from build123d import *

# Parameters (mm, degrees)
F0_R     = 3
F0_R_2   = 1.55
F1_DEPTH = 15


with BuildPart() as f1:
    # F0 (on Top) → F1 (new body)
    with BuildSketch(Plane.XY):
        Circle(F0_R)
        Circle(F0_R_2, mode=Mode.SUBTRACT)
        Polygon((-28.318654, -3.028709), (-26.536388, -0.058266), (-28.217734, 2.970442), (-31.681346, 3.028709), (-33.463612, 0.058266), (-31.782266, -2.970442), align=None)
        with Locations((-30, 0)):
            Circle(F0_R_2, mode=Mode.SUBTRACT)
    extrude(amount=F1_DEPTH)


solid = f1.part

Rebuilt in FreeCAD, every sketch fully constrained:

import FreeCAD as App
import Part
import Sketcher
Q = App.Units.Quantity

doc = App.newDocument("Part")
body = doc.addObject("PartDesign::Body", "Body")
body.AllowCompound = True

# Sketch on XY plane
sketch1 = body.newObject("Sketcher::SketchObject", "Sketch")
sketch1.AttachmentSupport = (doc.getObject("XY_Plane"), [""])
sketch1.MapMode = "FlatFace"
sketch1.addGeometry(Part.Circle(App.Vector(0, 0, 0), App.Vector(0, 0, 1), 3), False)
sketch1.addGeometry(Part.Circle(App.Vector(0, 0, 0), App.Vector(0, 0, 1), 1.6), False)
sketch1.addGeometry(Part.LineSegment(App.Vector(-28.3, -3, 0), App.Vector(-26.5, -0.1, 0)), False)
sketch1.addGeometry(Part.LineSegment(App.Vector(-26.5, -0.1, 0), App.Vector(-28.2, 3, 0)), False)
sketch1.addGeometry(Part.LineSegment(App.Vector(-28.2, 3, 0), App.Vector(-31.7, 3, 0)), False)
sketch1.addGeometry(Part.LineSegment(App.Vector(-31.7, 3, 0), App.Vector(-33.5, 0.1, 0)), False)
sketch1.addGeometry(Part.LineSegment(App.Vector(-33.5, 0.1, 0), App.Vector(-31.8, -3, 0)), False)
sketch1.addGeometry(Part.LineSegment(App.Vector(-31.8, -3, 0), App.Vector(-28.3, -3, 0)), False)
sketch1.addGeometry(Part.Circle(App.Vector(-30, 0, 0), App.Vector(0, 0, 1), 1.6), False)
sketch1.addConstraint(Sketcher.Constraint("Coincident", 2, 2, 3, 1))
sketch1.addConstraint(Sketcher.Constraint("Coincident", 3, 2, 4, 1))
sketch1.addConstraint(Sketcher.Constraint("Coincident", 4, 2, 5, 1))
sketch1.addConstraint(Sketcher.Constraint("Coincident", 5, 2, 6, 1))
sketch1.addConstraint(Sketcher.Constraint("Coincident", 6, 2, 7, 1))
sketch1.addConstraint(Sketcher.Constraint("Coincident", 7, 2, 2, 1))
sketch1.addConstraint(Sketcher.Constraint("Coincident", 0, 3, -1, 1))
sketch1.addConstraint(Sketcher.Constraint("Coincident", 1, 3, -1, 1))
sketch1.addConstraint(Sketcher.Constraint("Equal", 1, 8))
sketch1.addConstraint(Sketcher.Constraint("PointOnObject", 8, 3, -1))
sketch1.addConstraint(Sketcher.Constraint("Parallel", 2, 5))
sketch1.addConstraint(Sketcher.Constraint("Parallel", 3, 6))
sketch1.addConstraint(Sketcher.Constraint("Parallel", 4, 7))
sketch1.addConstraint(Sketcher.Constraint("Equal", 2, 3))
sketch1.addConstraint(Sketcher.Constraint("Equal", 3, 4))
sketch1.addConstraint(Sketcher.Constraint("Equal", 4, 5))
sketch1.addConstraint(Sketcher.Constraint("Diameter", 0, Q("6 mm")))
sketch1.addConstraint(Sketcher.Constraint("Diameter", 1, Q("3.1 mm")))
sketch1.addConstraint(Sketcher.Constraint("DistanceX", 8, 3, -1, 1, Q("30 mm")))
sketch1.addConstraint(Sketcher.Constraint("Distance", 3, Q("3.464101 mm")))
sketch1.addConstraint(Sketcher.Constraint("DistanceY", -1, 1, 3, 2, Q("2.970442 mm")))
sketch1.addConstraint(Sketcher.Constraint("DistanceY", -1, 1, 4, 2, Q("3.028709 mm")))
sketch1.addConstraint(Sketcher.Constraint("DistanceX", 5, 2, -1, 1, Q("33.463612 mm")))
sketch1.addConstraint(Sketcher.Constraint("DistanceY", 6, 2, -1, 1, Q("2.970442 mm")))
sketch1.addConstraint(Sketcher.Constraint("DistanceY", 2, 2, 3, 2, Q("3.028708 mm")))
pad1 = body.newObject("PartDesign::Pad", "Pad")
pad1.Profile = sketch1
pad1.Length = 15

doc.recompute()
